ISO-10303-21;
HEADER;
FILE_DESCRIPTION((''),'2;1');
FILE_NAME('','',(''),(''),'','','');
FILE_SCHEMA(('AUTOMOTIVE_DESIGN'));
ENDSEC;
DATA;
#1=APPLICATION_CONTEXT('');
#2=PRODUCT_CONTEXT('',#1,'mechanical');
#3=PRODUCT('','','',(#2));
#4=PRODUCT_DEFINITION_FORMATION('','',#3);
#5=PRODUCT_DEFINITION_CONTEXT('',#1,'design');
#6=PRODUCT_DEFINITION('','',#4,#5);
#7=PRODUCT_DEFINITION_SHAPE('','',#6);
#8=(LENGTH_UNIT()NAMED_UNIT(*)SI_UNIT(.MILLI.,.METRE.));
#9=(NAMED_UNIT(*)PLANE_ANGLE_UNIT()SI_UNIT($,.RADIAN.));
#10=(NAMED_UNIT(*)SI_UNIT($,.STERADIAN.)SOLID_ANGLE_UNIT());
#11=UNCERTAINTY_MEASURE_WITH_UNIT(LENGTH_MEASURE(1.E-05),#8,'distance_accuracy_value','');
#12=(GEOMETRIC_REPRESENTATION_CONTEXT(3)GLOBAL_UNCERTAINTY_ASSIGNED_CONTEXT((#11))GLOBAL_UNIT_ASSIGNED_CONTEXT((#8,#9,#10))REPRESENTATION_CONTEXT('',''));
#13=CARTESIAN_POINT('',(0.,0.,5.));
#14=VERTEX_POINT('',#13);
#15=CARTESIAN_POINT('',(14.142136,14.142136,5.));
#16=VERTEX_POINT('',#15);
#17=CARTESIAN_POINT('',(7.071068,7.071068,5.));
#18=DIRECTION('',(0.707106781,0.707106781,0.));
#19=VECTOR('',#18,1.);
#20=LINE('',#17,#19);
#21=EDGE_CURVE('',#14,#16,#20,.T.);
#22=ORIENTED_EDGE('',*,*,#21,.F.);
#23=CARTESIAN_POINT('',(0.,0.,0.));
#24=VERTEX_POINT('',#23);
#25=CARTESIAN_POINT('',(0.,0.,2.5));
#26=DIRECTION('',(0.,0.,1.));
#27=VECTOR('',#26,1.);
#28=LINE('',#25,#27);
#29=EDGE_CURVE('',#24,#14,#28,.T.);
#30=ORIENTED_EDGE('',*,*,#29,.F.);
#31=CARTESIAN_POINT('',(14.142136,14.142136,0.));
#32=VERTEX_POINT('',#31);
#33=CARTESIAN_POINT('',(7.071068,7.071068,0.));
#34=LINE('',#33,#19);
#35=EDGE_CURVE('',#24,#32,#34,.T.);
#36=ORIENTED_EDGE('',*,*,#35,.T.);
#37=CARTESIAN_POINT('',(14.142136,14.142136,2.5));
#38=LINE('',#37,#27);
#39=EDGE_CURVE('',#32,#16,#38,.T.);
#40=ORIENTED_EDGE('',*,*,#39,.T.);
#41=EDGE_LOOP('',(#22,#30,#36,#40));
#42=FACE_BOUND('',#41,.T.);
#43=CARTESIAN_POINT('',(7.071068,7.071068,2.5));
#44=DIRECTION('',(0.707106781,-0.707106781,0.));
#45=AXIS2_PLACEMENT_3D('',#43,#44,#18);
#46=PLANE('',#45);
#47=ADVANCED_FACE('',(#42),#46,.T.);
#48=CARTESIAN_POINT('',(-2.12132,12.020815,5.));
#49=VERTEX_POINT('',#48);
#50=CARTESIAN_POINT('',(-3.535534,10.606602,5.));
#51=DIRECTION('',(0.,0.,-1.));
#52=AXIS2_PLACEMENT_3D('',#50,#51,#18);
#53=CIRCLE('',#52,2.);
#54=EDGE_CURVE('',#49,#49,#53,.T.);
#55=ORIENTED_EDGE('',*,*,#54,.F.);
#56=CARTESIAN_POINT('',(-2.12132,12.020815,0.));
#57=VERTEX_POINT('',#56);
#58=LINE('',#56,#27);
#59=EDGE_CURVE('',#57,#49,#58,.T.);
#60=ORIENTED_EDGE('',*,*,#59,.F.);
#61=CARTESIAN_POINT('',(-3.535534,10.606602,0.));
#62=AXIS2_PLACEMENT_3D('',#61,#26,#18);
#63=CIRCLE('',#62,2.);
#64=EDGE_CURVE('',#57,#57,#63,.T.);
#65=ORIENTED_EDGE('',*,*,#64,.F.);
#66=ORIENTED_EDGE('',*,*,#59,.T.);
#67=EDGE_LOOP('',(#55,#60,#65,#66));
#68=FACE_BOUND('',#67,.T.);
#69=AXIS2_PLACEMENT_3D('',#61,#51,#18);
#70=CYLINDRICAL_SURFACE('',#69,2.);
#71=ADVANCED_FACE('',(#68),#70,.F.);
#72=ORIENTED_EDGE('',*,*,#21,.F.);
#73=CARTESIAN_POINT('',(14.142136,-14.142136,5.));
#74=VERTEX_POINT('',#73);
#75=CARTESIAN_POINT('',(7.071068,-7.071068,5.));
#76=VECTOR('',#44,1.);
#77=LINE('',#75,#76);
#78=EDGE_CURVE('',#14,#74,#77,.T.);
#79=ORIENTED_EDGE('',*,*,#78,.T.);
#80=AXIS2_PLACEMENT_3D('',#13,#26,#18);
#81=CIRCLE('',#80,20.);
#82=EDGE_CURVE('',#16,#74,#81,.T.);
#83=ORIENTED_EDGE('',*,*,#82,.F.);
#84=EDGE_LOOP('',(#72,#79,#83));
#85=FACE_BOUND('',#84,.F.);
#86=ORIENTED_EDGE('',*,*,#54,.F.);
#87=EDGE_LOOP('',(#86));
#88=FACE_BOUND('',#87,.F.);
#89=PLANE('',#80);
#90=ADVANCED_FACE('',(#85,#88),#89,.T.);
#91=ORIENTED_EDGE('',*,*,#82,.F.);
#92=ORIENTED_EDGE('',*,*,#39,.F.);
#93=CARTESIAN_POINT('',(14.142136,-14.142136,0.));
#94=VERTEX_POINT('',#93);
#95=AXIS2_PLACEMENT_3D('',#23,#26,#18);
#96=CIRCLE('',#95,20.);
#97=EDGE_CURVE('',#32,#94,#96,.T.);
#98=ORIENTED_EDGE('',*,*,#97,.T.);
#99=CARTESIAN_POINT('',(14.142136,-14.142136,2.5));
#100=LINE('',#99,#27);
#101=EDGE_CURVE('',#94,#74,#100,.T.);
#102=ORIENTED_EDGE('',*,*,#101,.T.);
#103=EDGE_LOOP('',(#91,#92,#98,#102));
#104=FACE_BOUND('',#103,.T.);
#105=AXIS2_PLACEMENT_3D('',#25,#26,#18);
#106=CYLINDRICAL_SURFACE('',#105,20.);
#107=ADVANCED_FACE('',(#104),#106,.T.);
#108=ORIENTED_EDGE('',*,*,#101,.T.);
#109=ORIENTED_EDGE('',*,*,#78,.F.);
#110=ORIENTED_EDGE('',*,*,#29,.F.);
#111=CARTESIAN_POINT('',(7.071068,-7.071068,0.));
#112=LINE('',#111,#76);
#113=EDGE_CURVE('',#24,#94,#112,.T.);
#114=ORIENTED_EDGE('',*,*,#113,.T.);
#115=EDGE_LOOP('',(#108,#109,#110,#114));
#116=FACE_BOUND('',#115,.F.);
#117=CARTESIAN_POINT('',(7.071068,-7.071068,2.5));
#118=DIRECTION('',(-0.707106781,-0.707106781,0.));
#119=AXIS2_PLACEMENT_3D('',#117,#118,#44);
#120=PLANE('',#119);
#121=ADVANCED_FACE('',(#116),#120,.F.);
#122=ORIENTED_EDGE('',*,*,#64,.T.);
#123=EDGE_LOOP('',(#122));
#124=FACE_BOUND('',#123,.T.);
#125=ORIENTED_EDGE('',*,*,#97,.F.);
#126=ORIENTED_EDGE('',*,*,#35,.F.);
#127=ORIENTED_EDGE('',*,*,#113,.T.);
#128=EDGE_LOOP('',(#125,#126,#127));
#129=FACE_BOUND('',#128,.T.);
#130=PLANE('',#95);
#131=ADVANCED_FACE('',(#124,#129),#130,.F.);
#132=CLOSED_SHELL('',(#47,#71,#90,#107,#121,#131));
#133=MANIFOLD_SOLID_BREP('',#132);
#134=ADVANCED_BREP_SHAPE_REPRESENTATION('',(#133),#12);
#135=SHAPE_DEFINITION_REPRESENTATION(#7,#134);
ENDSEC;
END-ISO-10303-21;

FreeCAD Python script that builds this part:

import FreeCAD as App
import Part
import Sketcher
from FreeCAD import Vector

doc = App.newDocument("Part")
body = doc.addObject("PartDesign::Body", "Body")

sketch1 = body.newObject("Sketcher::SketchObject", "Sketch")
sketch1.AttachmentSupport = (doc.getObject("XY_Plane"), [""])
sketch1.MapMode = "FlatFace"
sketch1.addGeometry(Part.Circle(Vector(5, 10, 0), Vector(0, 0, 1), 2), False)
sketch1.addConstraint(Sketcher.Constraint("Diameter", 0, 4.0))
sketch1.addConstraint(Sketcher.Constraint("DistanceX", -1, 1, 0, 3, 5.0))
sketch1.addConstraint(Sketcher.Constraint("DistanceY", -1, 1, 0, 3, 10.0))
pad1 = body.newObject("PartDesign::Pad", "Pad")
pad1.Profile = sketch1
pad1.Length = 10
body2 = doc.addObject("PartDesign::Body", "Body001")

sketch2 = body2.newObject("Sketcher::SketchObject", "Sketch001")
sketch2.AttachmentSupport = (doc.getObject("XZ_Plane001"), [""])
sketch2.MapMode = "FlatFace"
sketch2.addGeometry(Part.LineSegment(Vector(0, 5, 0), Vector(0, 0, 0)), False)
sketch2.addGeometry(Part.LineSegment(Vector(0, 0, 0), Vector(20, 0, 0)), False)
sketch2.addGeometry(Part.LineSegment(Vector(20, 0, 0), Vector(20, 5, 0)), False)
sketch2.addGeometry(Part.LineSegment(Vector(20, 5, 0), Vector(0, 5, 0)), False)
sketch2.addConstraint(Sketcher.Constraint("Coincident", 0, 2, 1, 1))
sketch2.addConstraint(Sketcher.Constraint("Coincident", 1, 2, 2, 1))
sketch2.addConstraint(Sketcher.Constraint("Coincident", 2, 2, 3, 1))
sketch2.addConstraint(Sketcher.Constraint("Coincident", 3, 2, 0, 1))
sketch2.addConstraint(Sketcher.Constraint("Vertical", 0))
sketch2.addConstraint(Sketcher.Constraint("Horizontal", 1))
sketch2.addConstraint(Sketcher.Constraint("Vertical", 2))
sketch2.addConstraint(Sketcher.Constraint("Horizontal", 3))
sketch2.addConstraint(Sketcher.Constraint("Coincident", 0, 2, -1, 1))
sketch2.addConstraint(Sketcher.Constraint("DistanceX", 1, 1, 1, 2, 20.0))
sketch2.addConstraint(Sketcher.Constraint("DistanceY", 0, 2, 0, 1, 5.0))
revolution = body2.newObject("PartDesign::Revolution", "Revolution")
revolution.Profile = sketch2
revolution.ReferenceAxis = (sketch2, ["V_Axis"])
revolution.Angle = 270
doc.recompute()

boolean = body2.newObject("PartDesign::Boolean", "Boolean")
boolean.Type = "Cut"
boolean.addObjects([body])
body3 = doc.addObject("PartDesign::Body", "Body002")
doc.recompute()

body2.Placement = App.Placement(Vector(0, 0, 0), App.Rotation(Vector(0, 0, 1), 45))
boolean2 = body3.newObject("PartDesign::Boolean", "Boolean001")
boolean2.Type = "Fuse"
boolean2.addObjects([body2])

doc.recompute()
